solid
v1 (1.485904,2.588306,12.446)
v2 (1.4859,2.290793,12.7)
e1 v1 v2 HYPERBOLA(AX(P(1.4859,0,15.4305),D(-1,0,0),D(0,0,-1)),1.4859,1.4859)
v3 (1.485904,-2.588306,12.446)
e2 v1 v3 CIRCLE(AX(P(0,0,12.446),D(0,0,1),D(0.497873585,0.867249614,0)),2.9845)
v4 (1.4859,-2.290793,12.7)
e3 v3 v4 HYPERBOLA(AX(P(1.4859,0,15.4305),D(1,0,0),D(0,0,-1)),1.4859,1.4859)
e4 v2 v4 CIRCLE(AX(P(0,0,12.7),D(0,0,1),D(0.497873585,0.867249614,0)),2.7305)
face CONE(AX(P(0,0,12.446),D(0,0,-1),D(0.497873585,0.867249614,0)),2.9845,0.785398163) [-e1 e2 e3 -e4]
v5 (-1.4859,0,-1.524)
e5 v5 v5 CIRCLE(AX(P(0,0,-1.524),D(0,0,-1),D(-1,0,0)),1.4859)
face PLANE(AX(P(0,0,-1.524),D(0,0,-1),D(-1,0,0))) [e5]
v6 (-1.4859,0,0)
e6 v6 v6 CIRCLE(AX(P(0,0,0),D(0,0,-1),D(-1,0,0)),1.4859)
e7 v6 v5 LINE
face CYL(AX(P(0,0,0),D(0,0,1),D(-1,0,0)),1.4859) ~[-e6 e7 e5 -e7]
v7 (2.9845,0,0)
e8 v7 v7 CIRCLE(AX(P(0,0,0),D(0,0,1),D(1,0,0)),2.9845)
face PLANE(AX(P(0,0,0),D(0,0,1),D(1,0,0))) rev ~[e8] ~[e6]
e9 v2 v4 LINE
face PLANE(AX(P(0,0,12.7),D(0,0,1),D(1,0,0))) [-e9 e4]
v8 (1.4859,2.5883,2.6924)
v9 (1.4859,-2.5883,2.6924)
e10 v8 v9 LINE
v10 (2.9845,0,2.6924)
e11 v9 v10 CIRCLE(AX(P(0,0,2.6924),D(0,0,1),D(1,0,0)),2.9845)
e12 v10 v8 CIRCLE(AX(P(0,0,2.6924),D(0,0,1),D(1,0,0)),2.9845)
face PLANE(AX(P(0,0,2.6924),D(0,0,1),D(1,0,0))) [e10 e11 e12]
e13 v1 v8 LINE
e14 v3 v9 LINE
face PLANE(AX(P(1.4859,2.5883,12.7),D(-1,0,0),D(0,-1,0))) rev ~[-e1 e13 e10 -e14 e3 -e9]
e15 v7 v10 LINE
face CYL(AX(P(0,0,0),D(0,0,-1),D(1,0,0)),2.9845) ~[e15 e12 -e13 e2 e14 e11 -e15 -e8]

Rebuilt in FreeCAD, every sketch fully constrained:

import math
import FreeCAD as App
import Part
import Sketcher
Q = App.Units.Quantity


def edges_at(feature, points):
    """Names of the edges that pass closest to the given points."""
    edges = feature.Shape.Edges
    near = lambda p: min(range(len(edges)), key=lambda i: edges[i].distToShape(Part.Vertex(*p))[0])
    return sorted({f"Edge{near(p) + 1}" for p in points})

doc = App.newDocument("Part")
body = doc.addObject("PartDesign::Body", "Body")

sketch1 = body.newObject("Sketcher::SketchObject", "Sketch")
sketch1.AttachmentSupport = (doc.getObject("XY_Plane"), [""])
sketch1.MapMode = "FlatFace"
sketch1.addGeometry(Part.Circle(App.Vector(0, 0, 0), App.Vector(0, 0, 1), 3), False)
sketch1.addConstraint(Sketcher.Constraint("Coincident", 0, 3, -1, 1))
sketch1.addConstraint(Sketcher.Constraint("Diameter", 0, Q("0.235 in")))
pad1 = body.newObject("PartDesign::Pad", "Pad")
pad1.Profile = sketch1
pad1.Length = Q("0.5 in")

sketch2 = body.newObject("Sketcher::SketchObject", "Sketch001")
sketch2.AttachmentSupport = (doc.getObject("XY_Plane"), [""])
sketch2.MapMode = "FlatFace"
sketch2.AttachmentOffset = App.Placement(App.Vector(0, 0, 0.5 * 25.4), App.Rotation())
sketch2.addGeometry(Part.ArcOfCircle(Part.Circle(App.Vector(0, 0, 0), App.Vector(0, 0, 1), 3), math.radians(-60), math.radians(60)), False)
sketch2.addGeometry(Part.LineSegment(App.Vector(1.5, -2.6, 0), App.Vector(1.5, 2.6, 0)), False)
sketch2.addConstraint(Sketcher.Constraint("Coincident", 0, 1, 1, 1))
sketch2.addConstraint(Sketcher.Constraint("Coincident", 1, 2, 0, 2))
sketch2.addConstraint(Sketcher.Constraint("Vertical", 1))
sketch2.addConstraint(Sketcher.Constraint("Coincident", 0, 3, -1, 1))
sketch2.addConstraint(Sketcher.Constraint("DistanceX", -1, 1, 0, 1, Q("0.0585 in")))
sketch2.addConstraint(Sketcher.Constraint("Radius", 0, Q("0.1175 in")))
pocket1 = body.newObject("PartDesign::Pocket", "Pocket")
pocket1.Profile = sketch2
pocket1.Length = Q("0.394 in")

sketch3 = body.newObject("Sketcher::SketchObject", "Sketch002")
sketch3.AttachmentSupport = (doc.getObject("XY_Plane"), [""])
sketch3.MapMode = "FlatFace"
sketch3.addGeometry(Part.Circle(App.Vector(0, 0, 0), App.Vector(0, 0, 1), 1.5), False)
sketch3.addConstraint(Sketcher.Constraint("Coincident", 0, 3, -1, 1))
sketch3.addConstraint(Sketcher.Constraint("Diameter", 0, Q("0.117 in")))
pad2 = body.newObject("PartDesign::Pad", "Pad001")
pad2.Profile = sketch3
pad2.Length = Q("0.06 in")
pad2.Reversed = True
doc.recompute()

chamfer = body.newObject("PartDesign::Chamfer", "Chamfer")
chamfer.Base = (pad2, edges_at(pad2, [(-2.985, 0, 12.7)]))
chamfer.Size = Q("0.01 in")

doc.recompute()
